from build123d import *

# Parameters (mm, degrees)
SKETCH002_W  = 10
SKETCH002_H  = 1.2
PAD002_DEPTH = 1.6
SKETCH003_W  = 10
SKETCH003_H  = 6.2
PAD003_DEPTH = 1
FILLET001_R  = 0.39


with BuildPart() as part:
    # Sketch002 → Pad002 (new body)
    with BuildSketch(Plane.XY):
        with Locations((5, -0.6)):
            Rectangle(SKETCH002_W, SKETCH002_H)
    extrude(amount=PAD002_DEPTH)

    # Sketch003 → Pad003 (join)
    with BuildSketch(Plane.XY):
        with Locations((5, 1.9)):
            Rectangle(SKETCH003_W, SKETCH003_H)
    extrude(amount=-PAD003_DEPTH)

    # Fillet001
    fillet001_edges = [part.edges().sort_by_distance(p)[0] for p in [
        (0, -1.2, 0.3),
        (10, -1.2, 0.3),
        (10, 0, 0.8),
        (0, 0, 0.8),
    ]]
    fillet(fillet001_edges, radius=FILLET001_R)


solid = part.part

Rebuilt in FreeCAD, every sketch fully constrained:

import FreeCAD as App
import Part
import Sketcher
Q = App.Units.Quantity


def edges_at(feature, points):
    """Names of the edges that pass closest to the given points."""
    edges = feature.Shape.Edges
    near = lambda p: min(range(len(edges)), key=lambda i: edges[i].distToShape(Part.Vertex(*p))[0])
    return sorted({f"Edge{near(p) + 1}" for p in points})


def add_polygon(sketch, points):
    """Adds a closed chain of lines whose ends are joined by coincident constraints."""
    first, n = sketch.GeometryCount, len(points)
    for a, b in zip(points, points[1:] + points[:1]):
        sketch.addGeometry(Part.LineSegment(App.Vector(*a, 0), App.Vector(*b, 0)), False)
    for i in range(n):
        sketch.addConstraint(Sketcher.Constraint("Coincident", first + i, 2, first + (i + 1) % n, 1))

doc = App.newDocument("Part")
body = doc.addObject("PartDesign::Body", "Body")

# Sketch on XY plane
sketch1 = body.newObject("Sketcher::SketchObject", "Sketch")
sketch1.AttachmentSupport = (doc.getObject("XY_Plane"), [""])
sketch1.MapMode = "FlatFace"
add_polygon(sketch1, [(0, 0), (0, -1.2), (10, -1.2), (10, 0)])  # lines 0-3
sketch1.addConstraint([
    Sketcher.Constraint("Vertical", 0),
    Sketcher.Constraint("Horizontal", 1),
    Sketcher.Constraint("Vertical", 2),
    Sketcher.Constraint("Horizontal", 3),
    Sketcher.Constraint("Coincident", 3, 2, -1, 1),
    Sketcher.Constraint("DistanceX", 1, 1, 1, 2, Q("10 mm")),
    Sketcher.Constraint("DistanceY", 0, 2, 0, 1, Q("1.2 mm")),
])
pad1 = body.newObject("PartDesign::Pad", "Pad")
pad1.Profile = sketch1
pad1.Length = 1.6

# Sketch on XY plane
sketch2 = body.newObject("Sketcher::SketchObject", "Sketch001")
sketch2.AttachmentSupport = (doc.getObject("XY_Plane"), [""])
sketch2.MapMode = "FlatFace"
add_polygon(sketch2, [(0, 5), (0, -1), (10, -1), (10, 5)])  # lines 0-3
sketch2.addConstraint([
    Sketcher.Constraint("Vertical", 0),
    Sketcher.Constraint("Horizontal", 1),
    Sketcher.Constraint("Vertical", 2),
    Sketcher.Constraint("Horizontal", 3),
    Sketcher.Constraint("PointOnObject", 0, 2, -2),
    Sketcher.Constraint("DistanceX", 1, 1, 1, 2, Q("10 mm")),
    Sketcher.Constraint("DistanceY", 0, 2, 0, 1, Q("6.2 mm")),
    Sketcher.Constraint("DistanceY", -1, 1, 2, 2, Q("5 mm")),
])
pad2 = body.newObject("PartDesign::Pad", "Pad001")
pad2.Profile = sketch2
pad2.Length = 1
pad2.Reversed = True
doc.recompute()

fillet = body.newObject("PartDesign::Fillet", "Fillet")
fillet.Base = (pad2, edges_at(pad2, [
    (0, -1.2, 0.3),
    (10, -1.2, 0.3),
    (10, 0, 0.8),
    (0, 0, 0.8),
]))
fillet.Radius = 0.39

doc.recompute()
